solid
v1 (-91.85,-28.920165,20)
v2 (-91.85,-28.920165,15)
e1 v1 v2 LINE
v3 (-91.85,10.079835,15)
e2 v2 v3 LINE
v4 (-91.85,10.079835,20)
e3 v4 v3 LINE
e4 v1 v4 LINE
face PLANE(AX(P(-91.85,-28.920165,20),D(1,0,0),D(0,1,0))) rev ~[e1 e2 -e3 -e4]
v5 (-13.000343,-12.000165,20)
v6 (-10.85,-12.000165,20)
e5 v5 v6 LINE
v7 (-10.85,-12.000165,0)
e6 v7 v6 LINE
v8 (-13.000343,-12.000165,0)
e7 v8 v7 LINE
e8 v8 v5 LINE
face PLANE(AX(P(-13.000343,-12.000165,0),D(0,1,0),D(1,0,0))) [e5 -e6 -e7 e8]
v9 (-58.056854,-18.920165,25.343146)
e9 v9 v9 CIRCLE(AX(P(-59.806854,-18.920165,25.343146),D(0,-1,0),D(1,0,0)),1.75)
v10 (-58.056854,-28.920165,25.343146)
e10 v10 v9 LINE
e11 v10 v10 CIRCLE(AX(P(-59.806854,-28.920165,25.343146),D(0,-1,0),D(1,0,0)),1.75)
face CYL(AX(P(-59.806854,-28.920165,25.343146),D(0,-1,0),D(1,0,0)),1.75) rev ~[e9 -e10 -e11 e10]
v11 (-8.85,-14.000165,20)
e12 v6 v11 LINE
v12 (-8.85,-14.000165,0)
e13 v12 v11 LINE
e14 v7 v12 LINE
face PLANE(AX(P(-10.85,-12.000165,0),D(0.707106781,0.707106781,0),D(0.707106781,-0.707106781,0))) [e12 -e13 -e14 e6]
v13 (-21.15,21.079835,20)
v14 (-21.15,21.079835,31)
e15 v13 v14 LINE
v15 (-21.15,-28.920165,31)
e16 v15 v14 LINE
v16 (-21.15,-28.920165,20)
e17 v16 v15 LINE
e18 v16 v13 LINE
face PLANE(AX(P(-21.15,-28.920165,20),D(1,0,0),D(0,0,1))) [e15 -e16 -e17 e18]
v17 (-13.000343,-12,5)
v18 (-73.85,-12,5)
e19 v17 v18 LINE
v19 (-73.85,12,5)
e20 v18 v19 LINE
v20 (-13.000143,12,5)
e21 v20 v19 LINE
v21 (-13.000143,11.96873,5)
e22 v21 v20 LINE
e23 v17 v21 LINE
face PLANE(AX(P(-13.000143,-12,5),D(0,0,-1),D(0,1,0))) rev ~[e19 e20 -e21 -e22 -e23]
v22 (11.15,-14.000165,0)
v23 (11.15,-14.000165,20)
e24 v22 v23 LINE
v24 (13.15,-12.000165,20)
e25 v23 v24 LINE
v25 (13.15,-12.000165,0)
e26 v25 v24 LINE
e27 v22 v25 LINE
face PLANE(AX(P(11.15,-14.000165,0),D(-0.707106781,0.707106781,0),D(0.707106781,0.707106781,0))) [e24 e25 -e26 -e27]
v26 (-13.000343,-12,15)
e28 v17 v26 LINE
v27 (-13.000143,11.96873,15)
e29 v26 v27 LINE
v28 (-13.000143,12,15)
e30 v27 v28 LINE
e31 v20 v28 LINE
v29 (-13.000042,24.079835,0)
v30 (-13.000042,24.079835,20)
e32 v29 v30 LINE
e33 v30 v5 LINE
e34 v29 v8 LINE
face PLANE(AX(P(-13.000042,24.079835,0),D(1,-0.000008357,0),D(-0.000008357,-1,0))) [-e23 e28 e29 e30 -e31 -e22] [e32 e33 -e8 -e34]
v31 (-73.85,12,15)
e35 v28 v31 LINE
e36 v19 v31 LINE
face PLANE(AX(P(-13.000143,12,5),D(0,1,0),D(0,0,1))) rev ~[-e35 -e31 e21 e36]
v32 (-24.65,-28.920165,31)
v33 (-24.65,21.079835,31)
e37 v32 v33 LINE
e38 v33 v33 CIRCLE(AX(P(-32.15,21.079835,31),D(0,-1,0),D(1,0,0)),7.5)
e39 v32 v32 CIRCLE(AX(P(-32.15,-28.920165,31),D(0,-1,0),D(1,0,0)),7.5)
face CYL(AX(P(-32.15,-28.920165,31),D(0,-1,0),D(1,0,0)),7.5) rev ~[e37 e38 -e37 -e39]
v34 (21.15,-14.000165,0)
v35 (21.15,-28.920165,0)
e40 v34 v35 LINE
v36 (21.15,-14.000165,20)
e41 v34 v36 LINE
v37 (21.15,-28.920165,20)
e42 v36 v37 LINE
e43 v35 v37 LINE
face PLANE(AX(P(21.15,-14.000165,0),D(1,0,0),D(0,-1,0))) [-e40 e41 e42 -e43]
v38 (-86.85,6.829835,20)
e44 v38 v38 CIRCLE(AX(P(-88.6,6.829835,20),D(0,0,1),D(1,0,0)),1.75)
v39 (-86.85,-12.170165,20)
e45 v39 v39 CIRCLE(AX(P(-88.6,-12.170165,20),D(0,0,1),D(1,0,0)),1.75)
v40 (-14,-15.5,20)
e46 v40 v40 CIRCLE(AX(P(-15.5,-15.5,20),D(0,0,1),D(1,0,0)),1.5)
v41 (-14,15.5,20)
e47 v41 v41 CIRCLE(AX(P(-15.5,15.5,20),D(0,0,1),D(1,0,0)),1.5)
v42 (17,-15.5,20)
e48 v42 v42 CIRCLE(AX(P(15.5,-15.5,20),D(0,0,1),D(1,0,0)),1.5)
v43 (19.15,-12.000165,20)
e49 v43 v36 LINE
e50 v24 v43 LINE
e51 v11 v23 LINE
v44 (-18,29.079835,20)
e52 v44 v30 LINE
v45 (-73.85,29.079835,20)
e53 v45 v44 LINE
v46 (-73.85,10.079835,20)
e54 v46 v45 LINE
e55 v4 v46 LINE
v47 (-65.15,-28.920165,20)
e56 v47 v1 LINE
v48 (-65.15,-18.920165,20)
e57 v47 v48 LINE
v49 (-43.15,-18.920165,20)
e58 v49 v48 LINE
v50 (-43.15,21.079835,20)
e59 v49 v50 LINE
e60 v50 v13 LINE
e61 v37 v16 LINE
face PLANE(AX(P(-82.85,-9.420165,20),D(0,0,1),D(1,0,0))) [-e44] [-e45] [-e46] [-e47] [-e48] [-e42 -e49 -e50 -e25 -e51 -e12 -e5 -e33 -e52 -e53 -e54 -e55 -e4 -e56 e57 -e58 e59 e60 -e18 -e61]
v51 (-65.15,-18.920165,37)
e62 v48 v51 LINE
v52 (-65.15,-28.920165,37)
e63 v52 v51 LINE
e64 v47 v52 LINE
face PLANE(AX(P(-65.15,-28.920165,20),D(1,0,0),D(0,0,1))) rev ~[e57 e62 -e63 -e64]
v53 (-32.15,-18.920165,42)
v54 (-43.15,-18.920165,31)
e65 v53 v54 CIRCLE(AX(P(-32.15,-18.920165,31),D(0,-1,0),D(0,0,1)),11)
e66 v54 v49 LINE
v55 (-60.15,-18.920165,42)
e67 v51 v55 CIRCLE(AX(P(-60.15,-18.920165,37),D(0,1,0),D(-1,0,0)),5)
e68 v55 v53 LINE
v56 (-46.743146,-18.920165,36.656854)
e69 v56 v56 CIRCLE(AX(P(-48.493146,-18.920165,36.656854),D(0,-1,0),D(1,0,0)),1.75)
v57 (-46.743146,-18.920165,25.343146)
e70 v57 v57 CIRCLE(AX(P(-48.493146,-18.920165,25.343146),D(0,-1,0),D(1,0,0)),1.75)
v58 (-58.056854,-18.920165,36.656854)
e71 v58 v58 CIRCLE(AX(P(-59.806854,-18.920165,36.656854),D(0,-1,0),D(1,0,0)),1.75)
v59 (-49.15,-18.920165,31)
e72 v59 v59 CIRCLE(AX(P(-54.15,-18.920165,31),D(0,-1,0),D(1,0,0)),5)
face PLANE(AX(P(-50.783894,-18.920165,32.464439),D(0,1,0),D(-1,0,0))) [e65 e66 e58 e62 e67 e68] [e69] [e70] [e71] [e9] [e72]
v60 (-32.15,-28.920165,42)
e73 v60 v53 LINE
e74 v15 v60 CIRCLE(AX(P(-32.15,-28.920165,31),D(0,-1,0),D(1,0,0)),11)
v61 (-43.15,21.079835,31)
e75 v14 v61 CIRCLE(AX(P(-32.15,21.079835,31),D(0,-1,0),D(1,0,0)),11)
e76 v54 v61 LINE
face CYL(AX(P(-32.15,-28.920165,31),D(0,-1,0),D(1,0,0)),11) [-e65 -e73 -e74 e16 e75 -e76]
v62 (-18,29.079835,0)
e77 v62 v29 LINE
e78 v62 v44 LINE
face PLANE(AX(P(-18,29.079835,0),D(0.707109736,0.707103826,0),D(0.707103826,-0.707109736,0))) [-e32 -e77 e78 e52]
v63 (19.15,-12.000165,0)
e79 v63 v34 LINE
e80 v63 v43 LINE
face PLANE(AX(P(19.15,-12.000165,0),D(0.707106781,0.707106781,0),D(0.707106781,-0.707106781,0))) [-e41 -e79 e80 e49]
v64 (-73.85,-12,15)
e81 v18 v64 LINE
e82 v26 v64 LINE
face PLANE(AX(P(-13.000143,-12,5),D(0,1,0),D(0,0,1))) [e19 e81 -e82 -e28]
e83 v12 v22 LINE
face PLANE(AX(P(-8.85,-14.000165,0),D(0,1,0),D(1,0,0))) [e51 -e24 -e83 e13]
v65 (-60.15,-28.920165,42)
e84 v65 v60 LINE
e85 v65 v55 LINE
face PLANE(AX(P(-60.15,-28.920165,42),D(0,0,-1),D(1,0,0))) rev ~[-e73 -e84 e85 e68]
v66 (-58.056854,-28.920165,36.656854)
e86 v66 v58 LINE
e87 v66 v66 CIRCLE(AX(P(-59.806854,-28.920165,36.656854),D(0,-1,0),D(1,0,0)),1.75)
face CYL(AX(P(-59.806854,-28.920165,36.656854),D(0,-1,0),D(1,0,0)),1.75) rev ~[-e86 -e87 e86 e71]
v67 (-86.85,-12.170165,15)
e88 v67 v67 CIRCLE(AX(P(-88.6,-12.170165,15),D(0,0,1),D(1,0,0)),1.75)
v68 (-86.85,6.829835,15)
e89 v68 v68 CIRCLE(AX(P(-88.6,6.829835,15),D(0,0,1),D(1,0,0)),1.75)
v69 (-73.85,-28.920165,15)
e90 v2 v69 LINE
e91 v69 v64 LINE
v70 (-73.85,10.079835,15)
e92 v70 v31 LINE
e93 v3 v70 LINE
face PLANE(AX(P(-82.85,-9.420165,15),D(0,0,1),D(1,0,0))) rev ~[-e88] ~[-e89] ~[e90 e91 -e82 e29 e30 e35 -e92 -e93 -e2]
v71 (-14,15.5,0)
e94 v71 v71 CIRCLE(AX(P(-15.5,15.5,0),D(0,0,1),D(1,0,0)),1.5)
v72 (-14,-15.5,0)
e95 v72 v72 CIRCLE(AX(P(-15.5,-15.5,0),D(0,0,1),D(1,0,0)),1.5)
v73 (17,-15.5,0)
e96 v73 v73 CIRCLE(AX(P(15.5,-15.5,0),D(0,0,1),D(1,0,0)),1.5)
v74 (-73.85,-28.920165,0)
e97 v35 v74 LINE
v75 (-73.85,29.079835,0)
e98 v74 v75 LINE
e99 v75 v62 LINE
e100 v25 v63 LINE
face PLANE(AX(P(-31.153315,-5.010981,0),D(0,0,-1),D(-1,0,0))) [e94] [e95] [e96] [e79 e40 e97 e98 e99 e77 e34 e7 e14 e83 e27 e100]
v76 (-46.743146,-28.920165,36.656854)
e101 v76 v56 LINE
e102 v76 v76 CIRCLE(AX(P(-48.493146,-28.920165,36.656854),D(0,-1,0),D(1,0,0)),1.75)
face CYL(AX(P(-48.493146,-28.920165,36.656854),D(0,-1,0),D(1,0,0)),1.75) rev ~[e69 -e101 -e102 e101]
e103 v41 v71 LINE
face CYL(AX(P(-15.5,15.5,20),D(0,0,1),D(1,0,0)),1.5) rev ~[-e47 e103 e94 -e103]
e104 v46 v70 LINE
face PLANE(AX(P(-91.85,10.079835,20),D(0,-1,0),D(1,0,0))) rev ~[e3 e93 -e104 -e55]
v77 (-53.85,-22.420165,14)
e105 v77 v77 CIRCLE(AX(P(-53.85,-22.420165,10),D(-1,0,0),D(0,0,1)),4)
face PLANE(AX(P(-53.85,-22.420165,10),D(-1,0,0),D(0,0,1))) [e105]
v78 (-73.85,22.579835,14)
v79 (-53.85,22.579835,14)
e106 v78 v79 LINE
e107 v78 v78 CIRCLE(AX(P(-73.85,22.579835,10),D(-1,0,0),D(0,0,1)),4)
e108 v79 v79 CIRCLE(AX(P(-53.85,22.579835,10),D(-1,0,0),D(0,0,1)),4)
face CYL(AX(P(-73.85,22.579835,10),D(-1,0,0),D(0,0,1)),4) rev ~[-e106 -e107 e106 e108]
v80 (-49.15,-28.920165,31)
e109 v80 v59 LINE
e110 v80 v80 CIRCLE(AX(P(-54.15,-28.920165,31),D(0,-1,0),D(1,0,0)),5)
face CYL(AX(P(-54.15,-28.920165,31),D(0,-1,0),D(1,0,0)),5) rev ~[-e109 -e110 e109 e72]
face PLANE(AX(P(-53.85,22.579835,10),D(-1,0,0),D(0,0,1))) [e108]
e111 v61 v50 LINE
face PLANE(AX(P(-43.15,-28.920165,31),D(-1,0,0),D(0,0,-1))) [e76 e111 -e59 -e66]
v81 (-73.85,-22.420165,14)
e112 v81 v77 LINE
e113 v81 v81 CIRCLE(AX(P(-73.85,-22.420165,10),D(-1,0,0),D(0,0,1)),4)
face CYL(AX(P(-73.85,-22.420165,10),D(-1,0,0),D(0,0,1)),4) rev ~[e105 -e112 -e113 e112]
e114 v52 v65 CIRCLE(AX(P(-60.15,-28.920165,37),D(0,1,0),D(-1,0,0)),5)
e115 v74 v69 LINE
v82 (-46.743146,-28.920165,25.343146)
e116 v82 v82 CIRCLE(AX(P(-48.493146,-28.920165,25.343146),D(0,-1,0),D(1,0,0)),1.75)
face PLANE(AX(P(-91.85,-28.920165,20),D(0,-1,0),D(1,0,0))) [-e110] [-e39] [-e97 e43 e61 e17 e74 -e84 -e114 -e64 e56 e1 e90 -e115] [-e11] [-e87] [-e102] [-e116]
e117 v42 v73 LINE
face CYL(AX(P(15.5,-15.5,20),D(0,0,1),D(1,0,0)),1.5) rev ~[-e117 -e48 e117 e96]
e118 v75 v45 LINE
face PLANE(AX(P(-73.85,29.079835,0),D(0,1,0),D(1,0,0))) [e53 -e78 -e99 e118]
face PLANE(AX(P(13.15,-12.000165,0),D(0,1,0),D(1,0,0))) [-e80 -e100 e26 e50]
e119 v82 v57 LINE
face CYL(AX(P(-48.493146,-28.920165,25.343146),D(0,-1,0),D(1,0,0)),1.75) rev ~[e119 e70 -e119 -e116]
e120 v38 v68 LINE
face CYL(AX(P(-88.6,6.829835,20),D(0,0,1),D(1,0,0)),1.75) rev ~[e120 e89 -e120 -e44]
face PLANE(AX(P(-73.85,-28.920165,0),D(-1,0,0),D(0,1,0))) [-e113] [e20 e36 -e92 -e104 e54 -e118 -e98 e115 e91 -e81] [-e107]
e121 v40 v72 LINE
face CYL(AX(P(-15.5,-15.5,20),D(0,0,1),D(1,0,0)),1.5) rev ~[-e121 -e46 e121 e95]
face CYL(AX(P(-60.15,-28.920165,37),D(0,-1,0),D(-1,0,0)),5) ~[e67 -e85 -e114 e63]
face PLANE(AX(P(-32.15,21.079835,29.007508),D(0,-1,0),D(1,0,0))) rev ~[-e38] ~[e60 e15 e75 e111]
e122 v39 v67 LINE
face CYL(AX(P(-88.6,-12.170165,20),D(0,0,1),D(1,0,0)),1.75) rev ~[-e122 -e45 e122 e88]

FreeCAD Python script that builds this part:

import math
import FreeCAD as App
import Part
import Sketcher

V = App.Vector


def add_polygon(sketch, points):
    """Adds a closed chain of lines whose ends are joined by coincident constraints."""
    first, n = sketch.GeometryCount, len(points)
    for a, b in zip(points, points[1:] + points[:1]):
        sketch.addGeometry(Part.LineSegment(App.Vector(*a, 0), App.Vector(*b, 0)), False)
    for i in range(n):
        sketch.addConstraint(Sketcher.Constraint("Coincident", first + i, 2, first + (i + 1) % n, 1))

doc = App.newDocument("Part")
body = doc.addObject("PartDesign::Body", "Body")

# Sketch on XY plane
sketch1 = body.newObject("Sketcher::SketchObject", "Sketch")
sketch1.AttachmentSupport = (doc.getObject("XY_Plane"), [""])
sketch1.MapMode = "FlatFace"
add_polygon(sketch1, [(-13, 24.1), (-18, 29.1), (-73.8, 29.1), (-73.8, -28.9), (21.1, -28.9), (21.1, -14), (19.1, -12), (13.2, -12), (11.2, -14), (-8.8, -14), (-10.8, -12), (-13, -12)])  # lines 0-11
sketch1.addConstraint(Sketcher.Constraint("Horizontal", 1))
sketch1.addConstraint(Sketcher.Constraint("Vertical", 2))
sketch1.addConstraint(Sketcher.Constraint("Horizontal", 3))
sketch1.addConstraint(Sketcher.Constraint("Vertical", 4))
sketch1.addConstraint(Sketcher.Constraint("Horizontal", 6))
sketch1.addConstraint(Sketcher.Constraint("Horizontal", 8))
sketch1.addConstraint(Sketcher.Constraint("Horizontal", 10))
sketch1.addConstraint(Sketcher.Constraint("Perpendicular", 5, 7))
sketch1.addConstraint(Sketcher.Constraint("Perpendicular", 7, 9))
sketch1.addConstraint(Sketcher.Constraint("Horizontal", 4, 2, 7, 2))
sketch1.addConstraint(Sketcher.Constraint("Horizontal", 6, 2, 9, 2))
sketch1.addConstraint(Sketcher.Constraint("Equal", 5, 7))
sketch1.addConstraint(Sketcher.Constraint("DistanceX", 3, 1, 3, 2, 95.0))
sketch1.addConstraint(Sketcher.Constraint("DistanceX", 6, 2, 6, 1, 6.0))
sketch1.addConstraint(Sketcher.Constraint("DistanceX", 8, 2, 8, 1, 20.0))
sketch1.addConstraint(Sketcher.Constraint("DistanceY", 2, 2, 2, 1, 58.0))
sketch1.addConstraint(Sketcher.Constraint("DistanceX", 0, 2, -1, 1, 18.0))
sketch1.addConstraint(Sketcher.Constraint("DistanceX", 5, 2, 4, 2, 2.0))
sketch1.addConstraint(Sketcher.Constraint("DistanceY", 11, 2, 0, 2, 5.0))
sketch1.addConstraint(Sketcher.Constraint("DistanceX", 1, 2, 1, 1, 55.85))
sketch1.addConstraint(Sketcher.Constraint("DistanceY", 4, 1, 4, 2, 14.92))
sketch1.addConstraint(Sketcher.Constraint("DistanceX", 10, 2, 11, 2, 0.000302))
sketch1.addConstraint(Sketcher.Constraint("Distance", 0, 7.071038))
sketch1.addConstraint(Sketcher.Constraint("DistanceY", -1, 1, 0, 2, 29.079835))
pad1 = body.newObject("PartDesign::Pad", "Pad")
pad1.Profile = sketch1
pad1.Length = 20

# Sketch on XY plane
sketch2 = body.newObject("Sketcher::SketchObject", "Sketch001")
sketch2.AttachmentSupport = (doc.getObject("XY_Plane"), [""])
sketch2.MapMode = "FlatFace"
sketch2.AttachmentOffset = App.Placement(V(0, 0, 20), App.Rotation())
sketch2.addGeometry(Part.Circle(V(-15.5, 15.5, 0), V(0, 0, 1), 1.5), False)
sketch2.addGeometry(Part.Circle(V(-15.5, -15.5, 0), V(0, 0, 1), 1.5), False)
sketch2.addGeometry(Part.Circle(V(15.5, -15.5, 0), V(0, 0, 1), 1.5), False)
sketch2.addConstraint(Sketcher.Constraint("Equal", 0, 1))
sketch2.addConstraint(Sketcher.Constraint("Equal", 1, 2))
sketch2.addConstraint(Sketcher.Constraint("Symmetric", 0, 3, 2, 3, -1, 1))
sketch2.addConstraint(Sketcher.Constraint("Symmetric", 1, 3, 2, 3, -2))
sketch2.addConstraint(Sketcher.Constraint("Diameter", 0, 3.0))
sketch2.addConstraint(Sketcher.Constraint("DistanceY", 1, 3, 0, 3, 31.0))
sketch2.addConstraint(Sketcher.Constraint("DistanceX", 1, 3, 2, 3, 31.0))
pocket1 = body.newObject("PartDesign::Pocket", "Pocket")
pocket1.Profile = sketch2
pocket1.Length = 20

# Sketch on XZ plane
sketch3 = body.newObject("Sketcher::SketchObject", "Sketch002")
sketch3.AttachmentSupport = (doc.getObject("XZ_Plane"), [""])
sketch3.MapMode = "FlatFace"
sketch3.AttachmentOffset = App.Placement(V(0, 0, 28.920165), App.Rotation())
sketch3.addGeometry(Part.LineSegment(V(-43, 31, 0), V(-43, 20, 0)), False)
sketch3.addGeometry(Part.LineSegment(V(-43, 20, 0), V(-21, 20, 0)), False)
sketch3.addGeometry(Part.LineSegment(V(-21, 20, 0), V(-21, 31, 0)), False)
sketch3.addGeometry(Part.ArcOfCircle(Part.Circle(V(-32, 31, 0), V(0, 0, 1), 11), math.radians(0), math.radians(180)), False)
sketch3.addGeometry(Part.Circle(V(-32, 31, 0), V(0, 0, 1), 8), False)
sketch3.addConstraint(Sketcher.Constraint("Coincident", 0, 2, 1, 1))
sketch3.addConstraint(Sketcher.Constraint("Coincident", 1, 2, 2, 1))
sketch3.addConstraint(Sketcher.Constraint("Tangent", 2, 2, 3, 1))
sketch3.addConstraint(Sketcher.Constraint("Tangent", 3, 2, 0, 1))
sketch3.addConstraint(Sketcher.Constraint("Vertical", 0))
sketch3.addConstraint(Sketcher.Constraint("Horizontal", 1))
sketch3.addConstraint(Sketcher.Constraint("Vertical", 2))
sketch3.addConstraint(Sketcher.Constraint("Coincident", 4, 3, 3, 3))
sketch3.addConstraint(Sketcher.Constraint("Diameter", 4, 15.0))
sketch3.addConstraint(Sketcher.Constraint("Radius", 3, 11.0))
sketch3.addConstraint(Sketcher.Constraint("DistanceY", 0, 2, 0, 1, 11.0))
sketch3.addConstraint(Sketcher.Constraint("DistanceY", -1, 1, 3, 3, 31.0))
sketch3.addConstraint(Sketcher.Constraint("DistanceX", 3, 3, -1, 1, 32.15))
pad2 = body.newObject("PartDesign::Pad", "Pad001")
pad2.Profile = sketch3
pad2.Length = 50
pad2.Reversed = True

# Sketch on XZ plane
sketch4 = body.newObject("Sketcher::SketchObject", "Sketch003")
sketch4.AttachmentSupport = (doc.getObject("XZ_Plane"), [""])
sketch4.MapMode = "FlatFace"
sketch4.AttachmentOffset = App.Placement(V(0, 0, 28.920165), App.Rotation())
sketch4.addGeometry(Part.ArcOfCircle(Part.Circle(V(-32, 31, 0), V(0, 0, 1), 11), math.radians(90), math.radians(180)), False)
sketch4.addGeometry(Part.LineSegment(V(-32, 42, 0), V(-60, 42, 0)), False)
sketch4.addGeometry(Part.ArcOfCircle(Part.Circle(V(-60, 37, 0), V(0, 0, 1), 5), math.radians(90), math.radians(180)), False)
sketch4.addGeometry(Part.LineSegment(V(-65, 37, 0), V(-65, 20, 0)), False)
sketch4.addGeometry(Part.LineSegment(V(-65, 20, 0), V(-43, 20, 0)), False)
sketch4.addGeometry(Part.LineSegment(V(-43, 20, 0), V(-43, 31, 0)), False)
sketch4.addConstraint(Sketcher.Constraint("Tangent", 0, 1, 1, 1))
sketch4.addConstraint(Sketcher.Constraint("Tangent", 1, 2, 2, 1))
sketch4.addConstraint(Sketcher.Constraint("Tangent", 2, 2, 3, 1))
sketch4.addConstraint(Sketcher.Constraint("Coincident", 3, 2, 4, 1))
sketch4.addConstraint(Sketcher.Constraint("Coincident", 4, 2, 5, 1))
sketch4.addConstraint(Sketcher.Constraint("Tangent", 5, 2, 0, 2))
sketch4.addConstraint(Sketcher.Constraint("Horizontal", 1))
sketch4.addConstraint(Sketcher.Constraint("Vertical", 3))
sketch4.addConstraint(Sketcher.Constraint("Horizontal", 4))
sketch4.addConstraint(Sketcher.Constraint("Vertical", 5))
sketch4.addConstraint(Sketcher.Constraint("Radius", 0, 11.0))
sketch4.addConstraint(Sketcher.Constraint("Radius", 2, 5.0))
sketch4.addConstraint(Sketcher.Constraint("DistanceX", 1, 2, 1, 1, 28.0))
sketch4.addConstraint(Sketcher.Constraint("DistanceY", 3, 2, 3, 1, 17.0))
sketch4.addConstraint(Sketcher.Constraint("DistanceY", -1, 1, 0, 3, 31.0))
sketch4.addConstraint(Sketcher.Constraint("DistanceX", 0, 3, -1, 1, 32.15))
pad3 = body.newObject("PartDesign::Pad", "Pad002")
pad3.Profile = sketch4
pad3.Length = 10
pad3.Reversed = True

# Sketch on XY plane
sketch5 = body.newObject("Sketcher::SketchObject", "Sketch004")
sketch5.AttachmentSupport = (doc.getObject("XY_Plane"), [""])
sketch5.MapMode = "FlatFace"
sketch5.AttachmentOffset = App.Placement(V(0, 0, 20), App.Rotation())
add_polygon(sketch5, [(-92, 10), (-92, -29), (-74, -29), (-74, 10)])  # lines 0-3
sketch5.addConstraint(Sketcher.Constraint("Vertical", 0))
sketch5.addConstraint(Sketcher.Constraint("Horizontal", 1))
sketch5.addConstraint(Sketcher.Constraint("Vertical", 2))
sketch5.addConstraint(Sketcher.Constraint("Horizontal", 3))
sketch5.addConstraint(Sketcher.Constraint("DistanceX", 1, 1, 1, 2, 18.0))
sketch5.addConstraint(Sketcher.Constraint("DistanceY", 0, 2, 0, 1, 39.0))
sketch5.addConstraint(Sketcher.Constraint("DistanceX", 0, 2, -1, 1, 91.85))
sketch5.addConstraint(Sketcher.Constraint("DistanceY", 0, 2, -1, 1, 28.920165))
pad4 = body.newObject("PartDesign::Pad", "Pad003")
pad4.Profile = sketch5
pad4.Length = 5
pad4.Reversed = True

# Sketch on XZ plane
sketch6 = body.newObject("Sketcher::SketchObject", "Sketch005")
sketch6.AttachmentSupport = (doc.getObject("XZ_Plane"), [""])
sketch6.MapMode = "FlatFace"
sketch6.AttachmentOffset = App.Placement(V(0, 0, 28.920165), App.Rotation())
sketch6.addGeometry(Part.Circle(V(-54.1, 31, 0), V(0, 0, 1), 5), False)
sketch6.addGeometry(Part.Circle(V(-59.8, 36.7, 0), V(0, 0, 1), 1.8), False)
sketch6.addGeometry(Part.Circle(V(-48.5, 36.7, 0), V(0, 0, 1), 1.8), False)
sketch6.addGeometry(Part.Circle(V(-48.5, 25.3, 0), V(0, 0, 1), 1.8), False)
sketch6.addGeometry(Part.Circle(V(-59.8, 25.3, 0), V(0, 0, 1), 1.8), False)
sketch6.addConstraint(Sketcher.Constraint("Equal", 1, 2))
sketch6.addConstraint(Sketcher.Constraint("Equal", 2, 3))
sketch6.addConstraint(Sketcher.Constraint("Equal", 3, 4))
sketch6.addConstraint(Sketcher.Constraint("Horizontal", 1, 3, 2, 3))
sketch6.addConstraint(Sketcher.Constraint("Horizontal", 3, 3, 4, 3))
sketch6.addConstraint(Sketcher.Constraint("Vertical", 2, 3, 3, 3))
sketch6.addConstraint(Sketcher.Constraint("Vertical", 1, 3, 4, 3))
sketch6.addConstraint(Sketcher.Constraint("Diameter", 0, 10.0))
sketch6.addConstraint(Sketcher.Constraint("Diameter", 1, 3.5))
sketch6.addConstraint(Sketcher.Constraint("DistanceY", -1, 1, 0, 3, 31.0))
sketch6.addConstraint(Sketcher.Constraint("DistanceX", 0, 3, -1, 1, 54.15))
sketch6.addConstraint(Sketcher.Constraint("DistanceX", 1, 3, 2, 3, 11.313708))
sketch6.addConstraint(Sketcher.Constraint("DistanceY", 3, 3, 2, 3, 11.313708))
sketch6.addConstraint(Sketcher.Constraint("DistanceX", 1, 3, -1, 1, 59.806854))
sketch6.addConstraint(Sketcher.Constraint("DistanceY", -1, 1, 1, 3, 36.656854))
pocket2 = body.newObject("PartDesign::Pocket", "Pocket001")
pocket2.Profile = sketch6
pocket2.Length = 15

# Sketch on YZ plane
sketch7 = body.newObject("Sketcher::SketchObject", "Sketch006")
sketch7.AttachmentSupport = (doc.getObject("YZ_Plane"), [""])
sketch7.MapMode = "FlatFace"
sketch7.AttachmentOffset = App.Placement(V(0, 0, -73.85), App.Rotation())
sketch7.addGeometry(Part.Circle(V(22.6, 10, 0), V(0, 0, 1), 4), False)
sketch7.addGeometry(Part.Circle(V(-22.4, 10, 0), V(0, 0, 1), 4), False)
sketch7.addConstraint(Sketcher.Constraint("Equal", 0, 1))
sketch7.addConstraint(Sketcher.Constraint("Horizontal", 0, 3, 1, 3))
sketch7.addConstraint(Sketcher.Constraint("Diameter", 0, 8.0))
sketch7.addConstraint(Sketcher.Constraint("DistanceY", -1, 1, 0, 3, 10.0))
sketch7.addConstraint(Sketcher.Constraint("DistanceX", 1, 3, 0, 3, 45.0))
sketch7.addConstraint(Sketcher.Constraint("DistanceX", -1, 1, 0, 3, 22.579835))
pocket3 = body.newObject("PartDesign::Pocket", "Pocket002")
pocket3.Profile = sketch7
pocket3.Length = 20
pocket3.Reversed = True

# Sketch on YZ plane
sketch8 = body.newObject("Sketcher::SketchObject", "Sketch007")
sketch8.AttachmentSupport = (doc.getObject("YZ_Plane"), [""])
sketch8.MapMode = "FlatFace"
sketch8.AttachmentOffset = App.Placement(V(0, 0, -13.000143), App.Rotation())
add_polygon(sketch8, [(12, 5), (-12, 5), (-12, 15), (12, 15)])  # lines 0-3
sketch8.addConstraint(Sketcher.Constraint("Horizontal", 0))
sketch8.addConstraint(Sketcher.Constraint("Vertical", 1))
sketch8.addConstraint(Sketcher.Constraint("Horizontal", 2))
sketch8.addConstraint(Sketcher.Constraint("Vertical", 3))
sketch8.addConstraint(Sketcher.Constraint("DistanceX", 0, 2, 0, 1, 24.0))
sketch8.addConstraint(Sketcher.Constraint("DistanceY", 1, 1, 1, 2, 10.0))
sketch8.addConstraint(Sketcher.Constraint("DistanceX", 0, 2, -1, 1, 12.0))
sketch8.addConstraint(Sketcher.Constraint("DistanceY", -1, 1, 0, 2, 5.0))
pocket4 = body.newObject("PartDesign::Pocket", "Pocket003")
pocket4.Profile = sketch8
pocket4.Length = 60.849857

# Sketch on XY plane
sketch9 = body.newObject("Sketcher::SketchObject", "Sketch008")
sketch9.AttachmentSupport = (doc.getObject("XY_Plane"), [""])
sketch9.MapMode = "FlatFace"
sketch9.AttachmentOffset = App.Placement(V(0, 0, 20), App.Rotation())
sketch9.addGeometry(Part.Circle(V(-88.6, -12.2, 0), V(0, 0, 1), 1.8), False)
sketch9.addGeometry(Part.Circle(V(-88.6, 6.8, 0), V(0, 0, 1), 1.8), False)
sketch9.addConstraint(Sketcher.Constraint("Equal", 0, 1))
sketch9.addConstraint(Sketcher.Constraint("Vertical", 0, 3, 1, 3))
sketch9.addConstraint(Sketcher.Constraint("Diameter", 0, 3.5))
sketch9.addConstraint(Sketcher.Constraint("DistanceY", 0, 3, 1, 3, 19.0))
sketch9.addConstraint(Sketcher.Constraint("DistanceX", 0, 3, -1, 1, 88.6))
sketch9.addConstraint(Sketcher.Constraint("DistanceY", 0, 3, -1, 1, 12.170165))
pocket5 = body.newObject("PartDesign::Pocket", "Pocket004")
pocket5.Profile = sketch9
pocket5.Length = 10

doc.recompute()
